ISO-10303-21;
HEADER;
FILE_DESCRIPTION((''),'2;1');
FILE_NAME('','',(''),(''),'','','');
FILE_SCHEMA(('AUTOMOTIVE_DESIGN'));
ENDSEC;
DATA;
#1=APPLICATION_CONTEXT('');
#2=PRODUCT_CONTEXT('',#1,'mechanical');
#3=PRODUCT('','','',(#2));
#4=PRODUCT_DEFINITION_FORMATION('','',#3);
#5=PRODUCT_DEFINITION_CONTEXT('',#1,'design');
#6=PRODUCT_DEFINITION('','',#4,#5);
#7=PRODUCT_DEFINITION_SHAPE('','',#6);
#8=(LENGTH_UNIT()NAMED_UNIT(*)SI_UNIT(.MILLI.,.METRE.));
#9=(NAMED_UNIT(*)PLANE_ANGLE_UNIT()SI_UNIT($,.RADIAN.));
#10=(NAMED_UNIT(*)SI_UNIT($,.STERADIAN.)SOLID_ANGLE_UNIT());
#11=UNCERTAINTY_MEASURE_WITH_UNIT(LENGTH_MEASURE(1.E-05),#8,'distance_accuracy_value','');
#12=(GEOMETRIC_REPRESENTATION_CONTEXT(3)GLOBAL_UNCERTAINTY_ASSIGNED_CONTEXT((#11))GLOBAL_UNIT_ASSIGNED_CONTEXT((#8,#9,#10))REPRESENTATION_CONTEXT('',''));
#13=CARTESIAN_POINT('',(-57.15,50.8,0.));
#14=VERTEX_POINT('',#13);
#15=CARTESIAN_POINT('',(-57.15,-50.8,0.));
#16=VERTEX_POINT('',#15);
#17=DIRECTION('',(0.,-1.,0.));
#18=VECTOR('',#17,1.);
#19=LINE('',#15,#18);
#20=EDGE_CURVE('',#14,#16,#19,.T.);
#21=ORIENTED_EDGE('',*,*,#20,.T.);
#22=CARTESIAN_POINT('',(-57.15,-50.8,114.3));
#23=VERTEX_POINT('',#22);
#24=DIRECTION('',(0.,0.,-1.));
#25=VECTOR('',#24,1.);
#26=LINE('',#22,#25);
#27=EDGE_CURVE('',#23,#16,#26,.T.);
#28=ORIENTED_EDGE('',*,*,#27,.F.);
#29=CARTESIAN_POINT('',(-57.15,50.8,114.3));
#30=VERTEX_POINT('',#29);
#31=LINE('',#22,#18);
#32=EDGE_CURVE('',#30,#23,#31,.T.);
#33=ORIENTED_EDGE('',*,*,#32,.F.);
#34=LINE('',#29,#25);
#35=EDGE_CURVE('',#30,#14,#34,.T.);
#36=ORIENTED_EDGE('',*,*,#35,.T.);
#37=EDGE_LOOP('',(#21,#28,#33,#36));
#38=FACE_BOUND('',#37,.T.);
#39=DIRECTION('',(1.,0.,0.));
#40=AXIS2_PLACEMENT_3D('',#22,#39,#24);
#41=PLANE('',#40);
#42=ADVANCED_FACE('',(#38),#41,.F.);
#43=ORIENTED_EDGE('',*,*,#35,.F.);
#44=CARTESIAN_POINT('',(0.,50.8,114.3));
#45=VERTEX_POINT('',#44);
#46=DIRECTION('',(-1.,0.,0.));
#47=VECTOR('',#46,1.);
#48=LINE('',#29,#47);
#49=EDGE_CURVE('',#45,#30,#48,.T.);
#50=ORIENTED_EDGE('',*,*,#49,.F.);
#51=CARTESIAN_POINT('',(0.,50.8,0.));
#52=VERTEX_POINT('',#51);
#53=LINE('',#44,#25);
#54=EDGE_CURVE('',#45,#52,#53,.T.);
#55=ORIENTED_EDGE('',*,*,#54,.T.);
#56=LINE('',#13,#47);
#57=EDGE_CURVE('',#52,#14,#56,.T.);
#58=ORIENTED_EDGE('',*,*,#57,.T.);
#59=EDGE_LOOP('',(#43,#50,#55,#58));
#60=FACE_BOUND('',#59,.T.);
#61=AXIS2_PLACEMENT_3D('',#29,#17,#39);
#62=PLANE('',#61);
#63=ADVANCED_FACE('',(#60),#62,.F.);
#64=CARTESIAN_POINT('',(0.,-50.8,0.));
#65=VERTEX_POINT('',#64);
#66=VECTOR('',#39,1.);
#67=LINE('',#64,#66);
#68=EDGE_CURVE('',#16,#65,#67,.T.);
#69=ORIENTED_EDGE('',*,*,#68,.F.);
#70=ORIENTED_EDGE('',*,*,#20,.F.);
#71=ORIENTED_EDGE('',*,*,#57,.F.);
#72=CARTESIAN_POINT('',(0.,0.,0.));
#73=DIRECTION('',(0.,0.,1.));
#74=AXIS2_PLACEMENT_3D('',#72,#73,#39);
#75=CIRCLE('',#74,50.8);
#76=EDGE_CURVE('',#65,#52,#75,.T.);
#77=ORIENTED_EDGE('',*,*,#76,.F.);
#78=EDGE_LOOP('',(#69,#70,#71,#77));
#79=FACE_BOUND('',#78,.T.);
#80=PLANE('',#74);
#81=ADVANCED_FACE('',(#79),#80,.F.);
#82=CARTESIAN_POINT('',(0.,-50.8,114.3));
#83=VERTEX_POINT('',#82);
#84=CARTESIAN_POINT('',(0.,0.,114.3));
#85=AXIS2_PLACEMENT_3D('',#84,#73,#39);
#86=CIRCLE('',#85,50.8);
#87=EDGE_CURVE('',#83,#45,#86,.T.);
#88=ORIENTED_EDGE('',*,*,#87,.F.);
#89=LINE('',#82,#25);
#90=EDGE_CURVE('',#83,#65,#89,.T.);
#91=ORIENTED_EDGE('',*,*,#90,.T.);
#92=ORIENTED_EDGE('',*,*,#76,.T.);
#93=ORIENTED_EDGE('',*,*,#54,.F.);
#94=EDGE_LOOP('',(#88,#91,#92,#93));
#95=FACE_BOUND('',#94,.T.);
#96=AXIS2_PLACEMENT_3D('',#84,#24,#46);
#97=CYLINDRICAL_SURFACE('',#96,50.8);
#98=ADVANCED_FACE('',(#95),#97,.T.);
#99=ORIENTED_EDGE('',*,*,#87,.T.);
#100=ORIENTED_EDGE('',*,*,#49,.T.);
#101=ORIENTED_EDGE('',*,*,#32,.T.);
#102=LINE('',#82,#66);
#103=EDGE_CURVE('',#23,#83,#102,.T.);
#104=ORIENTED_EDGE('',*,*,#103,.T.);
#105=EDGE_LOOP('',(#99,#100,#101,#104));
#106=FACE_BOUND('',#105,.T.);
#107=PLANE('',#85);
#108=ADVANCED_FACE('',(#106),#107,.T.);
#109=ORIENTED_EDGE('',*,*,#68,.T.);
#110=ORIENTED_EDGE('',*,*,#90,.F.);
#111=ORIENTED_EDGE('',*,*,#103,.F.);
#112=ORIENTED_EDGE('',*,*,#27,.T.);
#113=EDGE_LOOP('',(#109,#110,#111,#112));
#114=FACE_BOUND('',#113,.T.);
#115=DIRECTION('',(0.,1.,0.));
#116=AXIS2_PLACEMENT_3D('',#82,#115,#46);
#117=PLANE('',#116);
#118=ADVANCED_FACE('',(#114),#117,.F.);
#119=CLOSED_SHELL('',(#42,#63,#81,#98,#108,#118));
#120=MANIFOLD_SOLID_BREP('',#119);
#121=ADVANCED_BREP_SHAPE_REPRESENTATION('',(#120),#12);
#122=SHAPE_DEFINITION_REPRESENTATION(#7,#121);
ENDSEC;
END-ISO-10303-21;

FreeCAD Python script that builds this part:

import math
import FreeCAD as App
import Part
import Sketcher
from FreeCAD import Vector
Q = App.Units.Quantity

doc = App.newDocument("Part")
body = doc.addObject("PartDesign::Body", "Body")

sketch1 = body.newObject("Sketcher::SketchObject", "Sketch")
sketch1.AttachmentSupport = (doc.getObject("XY_Plane"), [""])
sketch1.MapMode = "FlatFace"
sketch1.addGeometry(Part.LineSegment(Vector(-57, -51, 0), Vector(0, -51, 0)), False)
sketch1.addGeometry(Part.ArcOfCircle(Part.Circle(Vector(0, 0, 0), Vector(0, 0, 1), 51), math.radians(-90), math.radians(90)), False)
sketch1.addGeometry(Part.LineSegment(Vector(0, 51, 0), Vector(-57, 51, 0)), False)
sketch1.addGeometry(Part.LineSegment(Vector(-57, 51, 0), Vector(-57, -51, 0)), False)
sketch1.addConstraint(Sketcher.Constraint("Tangent", 0, 2, 1, 1))
sketch1.addConstraint(Sketcher.Constraint("Tangent", 1, 2, 2, 1))
sketch1.addConstraint(Sketcher.Constraint("Coincident", 2, 2, 3, 1))
sketch1.addConstraint(Sketcher.Constraint("Coincident", 3, 2, 0, 1))
sketch1.addConstraint(Sketcher.Constraint("Horizontal", 0))
sketch1.addConstraint(Sketcher.Constraint("Horizontal", 2))
sketch1.addConstraint(Sketcher.Constraint("Vertical", 3))
sketch1.addConstraint(Sketcher.Constraint("Coincident", 1, 3, -1, 1))
sketch1.addConstraint(Sketcher.Constraint("Radius", 1, Q("2 in")))
sketch1.addConstraint(Sketcher.Constraint("DistanceX", 0, 1, 0, 2, Q("2.25 in")))
pad1 = body.newObject("PartDesign::Pad", "Pad")
pad1.Profile = sketch1
pad1.Length = Q("4.5 in")

sketch2 = body.newObject("Sketcher::SketchObject", "Sketch001")
sketch2.AttachmentSupport = (doc.getObject("XY_Plane"), [""])
sketch2.MapMode = "FlatFace"
sketch2.AttachmentOffset = App.Placement(Vector(0, 0, 4.5 * 25.4), App.Rotation())
sketch2.addGeometry(Part.Circle(Vector(0, 0, 0), Vector(0, 0, 1), 1.3), False)
sketch2.addConstraint(Sketcher.Constraint("Coincident", 0, 3, -1, 1))
sketch2.addConstraint(Sketcher.Constraint("Diameter", 0, Q("0.1 in")))
pad2 = body.newObject("PartDesign::Pad", "Pad001")
pad2.Profile = sketch2
pad2.Length = Q("0.2 in")
pad2.Reversed = True

doc.recompute()
